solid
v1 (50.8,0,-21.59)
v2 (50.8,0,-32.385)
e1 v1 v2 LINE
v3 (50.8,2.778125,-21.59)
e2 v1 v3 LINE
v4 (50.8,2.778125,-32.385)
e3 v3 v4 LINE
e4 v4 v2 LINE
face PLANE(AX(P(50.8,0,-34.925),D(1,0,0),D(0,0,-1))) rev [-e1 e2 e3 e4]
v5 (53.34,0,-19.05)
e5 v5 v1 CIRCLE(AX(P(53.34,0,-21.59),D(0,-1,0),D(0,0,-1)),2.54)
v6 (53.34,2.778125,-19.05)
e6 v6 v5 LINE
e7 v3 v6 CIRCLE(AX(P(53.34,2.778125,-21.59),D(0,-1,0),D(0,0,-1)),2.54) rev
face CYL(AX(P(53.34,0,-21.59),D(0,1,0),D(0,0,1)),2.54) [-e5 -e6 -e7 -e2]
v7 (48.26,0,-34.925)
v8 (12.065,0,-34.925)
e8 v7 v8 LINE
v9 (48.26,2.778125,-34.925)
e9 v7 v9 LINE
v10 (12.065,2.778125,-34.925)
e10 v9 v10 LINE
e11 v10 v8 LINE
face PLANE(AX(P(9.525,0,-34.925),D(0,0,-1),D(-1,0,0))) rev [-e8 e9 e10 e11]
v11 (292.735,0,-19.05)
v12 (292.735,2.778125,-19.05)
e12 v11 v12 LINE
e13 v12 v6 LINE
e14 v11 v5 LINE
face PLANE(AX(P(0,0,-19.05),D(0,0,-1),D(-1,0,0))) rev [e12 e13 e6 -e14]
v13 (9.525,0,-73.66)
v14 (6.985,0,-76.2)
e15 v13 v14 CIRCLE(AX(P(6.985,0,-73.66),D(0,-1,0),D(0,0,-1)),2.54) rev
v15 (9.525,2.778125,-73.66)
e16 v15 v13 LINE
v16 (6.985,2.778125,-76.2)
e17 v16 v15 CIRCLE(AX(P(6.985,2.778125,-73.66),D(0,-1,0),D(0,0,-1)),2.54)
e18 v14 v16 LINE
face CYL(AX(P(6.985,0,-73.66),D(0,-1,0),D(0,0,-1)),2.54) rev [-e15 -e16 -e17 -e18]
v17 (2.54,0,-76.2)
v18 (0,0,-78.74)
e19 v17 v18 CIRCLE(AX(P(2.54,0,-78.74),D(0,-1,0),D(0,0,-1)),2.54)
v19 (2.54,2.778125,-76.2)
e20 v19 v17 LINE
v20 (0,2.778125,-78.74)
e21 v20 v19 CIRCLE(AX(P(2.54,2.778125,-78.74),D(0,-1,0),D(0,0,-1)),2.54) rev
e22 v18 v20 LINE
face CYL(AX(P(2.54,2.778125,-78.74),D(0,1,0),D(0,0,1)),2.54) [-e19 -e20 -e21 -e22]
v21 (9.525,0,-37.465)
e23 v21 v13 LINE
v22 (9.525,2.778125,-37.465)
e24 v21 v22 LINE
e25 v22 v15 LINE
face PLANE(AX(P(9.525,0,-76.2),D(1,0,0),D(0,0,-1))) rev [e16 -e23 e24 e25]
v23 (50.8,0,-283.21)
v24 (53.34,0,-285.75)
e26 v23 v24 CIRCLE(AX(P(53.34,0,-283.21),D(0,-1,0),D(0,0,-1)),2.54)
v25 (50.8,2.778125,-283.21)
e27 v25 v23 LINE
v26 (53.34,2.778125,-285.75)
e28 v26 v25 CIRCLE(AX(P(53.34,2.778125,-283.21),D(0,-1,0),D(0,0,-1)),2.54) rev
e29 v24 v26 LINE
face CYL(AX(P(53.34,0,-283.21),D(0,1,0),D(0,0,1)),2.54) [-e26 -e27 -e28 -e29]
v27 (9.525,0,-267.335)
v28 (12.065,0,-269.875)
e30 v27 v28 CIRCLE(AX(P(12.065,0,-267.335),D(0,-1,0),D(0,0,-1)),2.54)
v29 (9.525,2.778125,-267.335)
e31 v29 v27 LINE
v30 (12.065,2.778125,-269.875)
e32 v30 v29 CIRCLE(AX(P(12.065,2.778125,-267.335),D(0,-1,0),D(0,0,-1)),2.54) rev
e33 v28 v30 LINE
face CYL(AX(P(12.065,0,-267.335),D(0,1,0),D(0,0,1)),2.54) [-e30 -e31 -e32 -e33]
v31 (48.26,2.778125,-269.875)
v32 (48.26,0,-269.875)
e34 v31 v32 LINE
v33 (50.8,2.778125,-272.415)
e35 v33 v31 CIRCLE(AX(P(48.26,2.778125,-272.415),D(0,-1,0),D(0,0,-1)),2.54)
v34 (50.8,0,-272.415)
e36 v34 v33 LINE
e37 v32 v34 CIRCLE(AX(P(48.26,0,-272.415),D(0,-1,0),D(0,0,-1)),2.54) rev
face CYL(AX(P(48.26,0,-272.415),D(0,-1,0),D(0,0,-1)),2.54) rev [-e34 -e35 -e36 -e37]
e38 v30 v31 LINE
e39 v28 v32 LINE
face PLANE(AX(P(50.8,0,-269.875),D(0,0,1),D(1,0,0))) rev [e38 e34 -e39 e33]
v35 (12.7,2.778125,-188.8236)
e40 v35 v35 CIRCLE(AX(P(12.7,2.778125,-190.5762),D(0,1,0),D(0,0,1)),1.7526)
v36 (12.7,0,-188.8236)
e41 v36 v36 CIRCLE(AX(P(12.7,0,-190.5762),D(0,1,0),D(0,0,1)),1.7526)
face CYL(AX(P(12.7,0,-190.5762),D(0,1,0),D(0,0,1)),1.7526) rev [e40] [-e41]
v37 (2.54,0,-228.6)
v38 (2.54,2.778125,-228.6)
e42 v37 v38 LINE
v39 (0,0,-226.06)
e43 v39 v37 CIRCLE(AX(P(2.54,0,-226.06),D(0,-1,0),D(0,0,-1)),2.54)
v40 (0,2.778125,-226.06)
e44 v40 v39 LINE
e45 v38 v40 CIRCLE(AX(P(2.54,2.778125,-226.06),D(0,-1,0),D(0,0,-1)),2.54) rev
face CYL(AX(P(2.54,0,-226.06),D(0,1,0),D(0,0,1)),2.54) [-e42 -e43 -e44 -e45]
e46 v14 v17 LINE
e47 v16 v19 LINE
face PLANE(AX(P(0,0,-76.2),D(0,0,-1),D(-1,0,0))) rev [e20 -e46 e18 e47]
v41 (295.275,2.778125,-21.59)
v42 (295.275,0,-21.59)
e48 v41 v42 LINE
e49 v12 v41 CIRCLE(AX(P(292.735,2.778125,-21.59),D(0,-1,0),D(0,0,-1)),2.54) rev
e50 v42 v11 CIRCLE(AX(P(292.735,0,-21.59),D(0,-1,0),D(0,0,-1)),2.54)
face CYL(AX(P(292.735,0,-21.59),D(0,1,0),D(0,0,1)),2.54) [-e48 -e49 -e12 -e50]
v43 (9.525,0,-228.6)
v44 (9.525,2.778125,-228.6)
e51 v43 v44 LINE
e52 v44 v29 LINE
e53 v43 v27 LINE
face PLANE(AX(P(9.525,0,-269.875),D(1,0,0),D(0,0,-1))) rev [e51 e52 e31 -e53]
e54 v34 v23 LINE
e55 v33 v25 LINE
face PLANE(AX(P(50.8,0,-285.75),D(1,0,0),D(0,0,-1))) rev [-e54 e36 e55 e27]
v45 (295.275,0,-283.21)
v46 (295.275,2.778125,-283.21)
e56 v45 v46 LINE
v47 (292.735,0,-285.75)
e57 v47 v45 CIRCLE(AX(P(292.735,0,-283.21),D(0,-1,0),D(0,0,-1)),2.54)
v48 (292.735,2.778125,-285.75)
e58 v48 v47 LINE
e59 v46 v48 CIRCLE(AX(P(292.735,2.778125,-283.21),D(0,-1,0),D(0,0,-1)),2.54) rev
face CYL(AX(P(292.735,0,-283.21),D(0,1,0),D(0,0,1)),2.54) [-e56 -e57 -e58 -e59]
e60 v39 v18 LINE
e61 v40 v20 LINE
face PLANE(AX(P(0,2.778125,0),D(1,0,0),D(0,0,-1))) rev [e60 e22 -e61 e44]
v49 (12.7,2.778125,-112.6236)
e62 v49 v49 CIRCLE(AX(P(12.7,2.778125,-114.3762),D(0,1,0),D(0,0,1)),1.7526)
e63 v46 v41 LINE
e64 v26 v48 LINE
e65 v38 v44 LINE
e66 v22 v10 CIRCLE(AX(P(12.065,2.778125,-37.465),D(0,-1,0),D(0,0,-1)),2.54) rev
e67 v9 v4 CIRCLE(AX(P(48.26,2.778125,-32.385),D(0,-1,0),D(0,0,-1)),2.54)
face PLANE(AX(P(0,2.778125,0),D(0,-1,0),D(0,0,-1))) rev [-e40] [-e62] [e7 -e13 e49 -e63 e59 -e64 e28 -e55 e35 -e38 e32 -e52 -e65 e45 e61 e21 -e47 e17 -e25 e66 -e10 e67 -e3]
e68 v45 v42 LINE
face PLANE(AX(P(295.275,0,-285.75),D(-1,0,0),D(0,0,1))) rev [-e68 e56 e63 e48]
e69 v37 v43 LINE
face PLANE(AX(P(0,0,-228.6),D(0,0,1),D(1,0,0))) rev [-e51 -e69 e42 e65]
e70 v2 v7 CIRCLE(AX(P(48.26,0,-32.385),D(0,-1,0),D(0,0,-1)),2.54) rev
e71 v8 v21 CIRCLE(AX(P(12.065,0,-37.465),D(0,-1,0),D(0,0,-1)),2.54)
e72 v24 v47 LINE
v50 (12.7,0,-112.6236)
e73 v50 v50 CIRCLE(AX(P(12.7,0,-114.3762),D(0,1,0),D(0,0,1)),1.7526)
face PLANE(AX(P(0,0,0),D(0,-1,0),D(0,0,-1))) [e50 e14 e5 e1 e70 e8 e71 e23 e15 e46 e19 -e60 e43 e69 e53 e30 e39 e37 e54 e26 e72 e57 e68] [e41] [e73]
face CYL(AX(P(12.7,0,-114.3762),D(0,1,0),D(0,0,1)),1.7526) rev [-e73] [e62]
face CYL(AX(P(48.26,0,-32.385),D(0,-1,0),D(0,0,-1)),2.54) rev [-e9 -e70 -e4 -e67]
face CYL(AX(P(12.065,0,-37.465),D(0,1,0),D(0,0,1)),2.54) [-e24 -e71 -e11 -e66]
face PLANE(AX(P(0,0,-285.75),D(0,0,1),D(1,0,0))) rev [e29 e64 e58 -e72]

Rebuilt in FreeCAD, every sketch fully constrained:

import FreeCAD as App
import Part
import Sketcher
Q = App.Units.Quantity


def edges_at(feature, points):
    """Names of the edges that pass closest to the given points."""
    edges = feature.Shape.Edges
    near = lambda p: min(range(len(edges)), key=lambda i: edges[i].distToShape(Part.Vertex(*p))[0])
    return sorted({f"Edge{near(p) + 1}" for p in points})

doc = App.newDocument("Part")
params = doc.addObject("Spreadsheet::Sheet", "Params")
for row, (alias, value) in enumerate([
    ("sketch1_width", "12 in"),
    ("pad1_length", "0.109375 in"),
    ("sketch2_width", "12 in"),
    ("sketch2_height", "0.75 in"),
    ("sketch3_width", "2 in"),
    ("sketch3_height", "2.25 in"),
    ("sketch3_width2", "0.375 in"),
    ("sketch4_diameter", "0.138 in"),
    ("sketch5_height", "10.5 in"),
    ("sketch5_width", "0.375 in"),
    ("fillet_radius", "0.1 in"),
], start=1):
    params.set(f"A{row}", alias)
    params.set(f"B{row}", "=" + value)
    params.setAlias(f"B{row}", alias)

body = doc.addObject("PartDesign::Body", "Body")

sketch1 = doc.addObject("Sketcher::SketchObject", "Sketch")
body.addObject(sketch1)
sketch1.AttachmentSupport = (doc.XZ_Plane, [""])
sketch1.MapMode = "FlatFace"
sketch1.addGeometry(Part.LineSegment(App.Vector(0, -305, 0), App.Vector(0, 0, 0)), False)
sketch1.addGeometry(Part.LineSegment(App.Vector(0, 0, 0), App.Vector(305, 0, 0)), False)
sketch1.addGeometry(Part.LineSegment(App.Vector(305, 0, 0), App.Vector(305, -305, 0)), False)
sketch1.addGeometry(Part.LineSegment(App.Vector(305, -305, 0), App.Vector(0, -305, 0)), False)
sketch1.addConstraint(Sketcher.Constraint("Coincident", 0, 2, 1, 1))
sketch1.addConstraint(Sketcher.Constraint("Coincident", 1, 2, 2, 1))
sketch1.addConstraint(Sketcher.Constraint("Coincident", 2, 2, 3, 1))
sketch1.addConstraint(Sketcher.Constraint("Coincident", 3, 2, 0, 1))
sketch1.addConstraint(Sketcher.Constraint("Vertical", 0))
sketch1.addConstraint(Sketcher.Constraint("Horizontal", 1))
sketch1.addConstraint(Sketcher.Constraint("Vertical", 2))
sketch1.addConstraint(Sketcher.Constraint("Horizontal", 3))
sketch1.addConstraint(Sketcher.Constraint("Coincident", 0, 2, -1, 1))
sketch1.addConstraint(Sketcher.Constraint("Equal", 3, 0))
sketch1.addConstraint(Sketcher.Constraint("DistanceX", 1, 1, 1, 2, Q("12 in")))
sketch1.setExpression("Constraints[10]", "Params.sketch1_width")
pad1 = doc.addObject("PartDesign::Pad", "Pad")
body.addObject(pad1)
pad1.Profile = sketch1
pad1.setExpression("Length", "Params.pad1_length")
pad1.Reversed = True

sketch2 = doc.addObject("Sketcher::SketchObject", "Sketch001")
body.addObject(sketch2)
sketch2.AttachmentSupport = (doc.XZ_Plane, [""])
sketch2.MapMode = "FlatFace"
sketch2.AttachmentOffset = App.Placement(App.Vector(0, 0, -0.109375 * 25.4), App.Rotation())
sketch2.addGeometry(Part.LineSegment(App.Vector(0, -19, 0), App.Vector(0, 0, 0)), False)
sketch2.addGeometry(Part.LineSegment(App.Vector(0, 0, 0), App.Vector(305, 0, 0)), False)
sketch2.addGeometry(Part.LineSegment(App.Vector(305, 0, 0), App.Vector(305, -19, 0)), False)
sketch2.addGeometry(Part.LineSegment(App.Vector(305, -19, 0), App.Vector(0, -19, 0)), False)
sketch2.addGeometry(Part.LineSegment(App.Vector(0, -305, 0), App.Vector(0, -286, 0)), False)
sketch2.addGeometry(Part.LineSegment(App.Vector(0, -286, 0), App.Vector(305, -286, 0)), False)
sketch2.addGeometry(Part.LineSegment(App.Vector(305, -286, 0), App.Vector(305, -305, 0)), False)
sketch2.addGeometry(Part.LineSegment(App.Vector(305, -305, 0), App.Vector(0, -305, 0)), False)
sketch2.addConstraint(Sketcher.Constraint("Coincident", 0, 2, 1, 1))
sketch2.addConstraint(Sketcher.Constraint("Coincident", 1, 2, 2, 1))
sketch2.addConstraint(Sketcher.Constraint("Coincident", 2, 2, 3, 1))
sketch2.addConstraint(Sketcher.Constraint("Coincident", 3, 2, 0, 1))
sketch2.addConstraint(Sketcher.Constraint("Coincident", 4, 2, 5, 1))
sketch2.addConstraint(Sketcher.Constraint("Coincident", 5, 2, 6, 1))
sketch2.addConstraint(Sketcher.Constraint("Coincident", 6, 2, 7, 1))
sketch2.addConstraint(Sketcher.Constraint("Coincident", 7, 2, 4, 1))
sketch2.addConstraint(Sketcher.Constraint("Vertical", 0))
sketch2.addConstraint(Sketcher.Constraint("Horizontal", 1))
sketch2.addConstraint(Sketcher.Constraint("Vertical", 2))
sketch2.addConstraint(Sketcher.Constraint("Horizontal", 3))
sketch2.addConstraint(Sketcher.Constraint("Vertical", 4))
sketch2.addConstraint(Sketcher.Constraint("Horizontal", 5))
sketch2.addConstraint(Sketcher.Constraint("Vertical", 6))
sketch2.addConstraint(Sketcher.Constraint("Horizontal", 7))
sketch2.addConstraint(Sketcher.Constraint("Coincident", 0, 2, -1, 1))
sketch2.addConstraint(Sketcher.Constraint("PointOnObject", 4, 2, -2))
sketch2.addConstraint(Sketcher.Constraint("Vertical", 2, 2, 5, 2))
sketch2.addConstraint(Sketcher.Constraint("Equal", 2, 4))
sketch2.addConstraint(Sketcher.Constraint("DistanceX", 1, 1, 1, 2, Q("12 in")))
sketch2.addConstraint(Sketcher.Constraint("DistanceY", 6, 2, -1, 1, Q("12 in")))
sketch2.addConstraint(Sketcher.Constraint("DistanceY", 0, 1, 0, 2, Q("0.75 in")))
sketch2.setExpression("Constraints[20]", "Params.sketch2_width")
sketch2.setExpression("Constraints[22]", "Params.sketch2_height")
pocket1 = doc.addObject("PartDesign::Pocket", "Pocket")
body.addObject(pocket1)
pocket1.Profile = sketch2
pocket1.Type = "ThroughAll"
pocket1.Reversed = True

sketch3 = doc.addObject("Sketcher::SketchObject", "Sketch002")
body.addObject(sketch3)
sketch3.AttachmentSupport = (doc.XZ_Plane, [""])
sketch3.MapMode = "FlatFace"
sketch3.AttachmentOffset = App.Placement(App.Vector(0, 0, -0.109375 * 25.4), App.Rotation())
sketch3.addGeometry(Part.LineSegment(App.Vector(51, -286, 0), App.Vector(0, -286, 0)), False)
sketch3.addGeometry(Part.LineSegment(App.Vector(0, -286, 0), App.Vector(0, -229, 0)), False)
sketch3.addGeometry(Part.LineSegment(App.Vector(0, -229, 0), App.Vector(10, -229, 0)), False)
sketch3.addGeometry(Part.LineSegment(App.Vector(10, -229, 0), App.Vector(10, -270, 0)), False)
sketch3.addGeometry(Part.LineSegment(App.Vector(10, -270, 0), App.Vector(51, -270, 0)), False)
sketch3.addGeometry(Part.LineSegment(App.Vector(51, -270, 0), App.Vector(51, -286, 0)), False)
sketch3.addGeometry(Part.LineSegment(App.Vector(0, -76, 0), App.Vector(0, -19, 0)), False)
sketch3.addGeometry(Part.LineSegment(App.Vector(0, -19, 0), App.Vector(51, -19, 0)), False)
sketch3.addGeometry(Part.LineSegment(App.Vector(51, -19, 0), App.Vector(51, -35, 0)), False)
sketch3.addGeometry(Part.LineSegment(App.Vector(51, -35, 0), App.Vector(10, -35, 0)), False)
sketch3.addGeometry(Part.LineSegment(App.Vector(10, -35, 0), App.Vector(10, -76, 0)), False)
sketch3.addGeometry(Part.LineSegment(App.Vector(10, -76, 0), App.Vector(0, -76, 0)), False)
sketch3.addConstraint(Sketcher.Constraint("Coincident", 0, 2, 1, 1))
sketch3.addConstraint(Sketcher.Constraint("Coincident", 1, 2, 2, 1))
sketch3.addConstraint(Sketcher.Constraint("Coincident", 2, 2, 3, 1))
sketch3.addConstraint(Sketcher.Constraint("Coincident", 3, 2, 4, 1))
sketch3.addConstraint(Sketcher.Constraint("Coincident", 4, 2, 5, 1))
sketch3.addConstraint(Sketcher.Constraint("Coincident", 5, 2, 0, 1))
sketch3.addConstraint(Sketcher.Constraint("Coincident", 6, 2, 7, 1))
sketch3.addConstraint(Sketcher.Constraint("Coincident", 7, 2, 8, 1))
sketch3.addConstraint(Sketcher.Constraint("Coincident", 8, 2, 9, 1))
sketch3.addConstraint(Sketcher.Constraint("Coincident", 9, 2, 10, 1))
sketch3.addConstraint(Sketcher.Constraint("Coincident", 10, 2, 11, 1))
sketch3.addConstraint(Sketcher.Constraint("Coincident", 11, 2, 6, 1))
sketch3.addConstraint(Sketcher.Constraint("Horizontal", 0))
sketch3.addConstraint(Sketcher.Constraint("Vertical", 1))
sketch3.addConstraint(Sketcher.Constraint("Horizontal", 2))
sketch3.addConstraint(Sketcher.Constraint("Vertical", 3))
sketch3.addConstraint(Sketcher.Constraint("Horizontal", 4))
sketch3.addConstraint(Sketcher.Constraint("Vertical", 5))
sketch3.addConstraint(Sketcher.Constraint("Vertical", 6))
sketch3.addConstraint(Sketcher.Constraint("Horizontal", 7))
sketch3.addConstraint(Sketcher.Constraint("Vertical", 8))
sketch3.addConstraint(Sketcher.Constraint("Horizontal", 9))
sketch3.addConstraint(Sketcher.Constraint("Vertical", 10))
sketch3.addConstraint(Sketcher.Constraint("Horizontal", 11))
sketch3.addConstraint(Sketcher.Constraint("PointOnObject", 0, 2, -2))
sketch3.addConstraint(Sketcher.Constraint("PointOnObject", 6, 2, -2))
sketch3.addConstraint(Sketcher.Constraint("Vertical", 5, 2, 7, 2))
sketch3.addConstraint(Sketcher.Constraint("Vertical", 3, 2, 9, 2))
sketch3.addConstraint(Sketcher.Constraint("Equal", 9, 3))
sketch3.addConstraint(Sketcher.Constraint("Equal", 1, 6))
sketch3.addConstraint(Sketcher.Constraint("Equal", 5, 8))
sketch3.addConstraint(Sketcher.Constraint("DistanceX", 0, 2, 0, 1, Q("2 in")))
sketch3.addConstraint(Sketcher.Constraint("DistanceY", 1, 2, -1, 1, Q("9 in")))
sketch3.addConstraint(Sketcher.Constraint("DistanceY", 10, 2, -1, 1, Q("3 in")))
sketch3.addConstraint(Sketcher.Constraint("DistanceY", 1, 1, 1, 2, Q("2.25 in")))
sketch3.addConstraint(Sketcher.Constraint("DistanceX", 2, 1, 2, 2, Q("0.375 in")))
sketch3.setExpression("Constraints[31]", "Params.sketch3_width")
sketch3.setExpression("Constraints[34]", "Params.sketch3_height")
sketch3.setExpression("Constraints[35]", "Params.sketch3_width2")
pocket2 = doc.addObject("PartDesign::Pocket", "Pocket001")
body.addObject(pocket2)
pocket2.Profile = sketch3
pocket2.Type = "ThroughAll"
pocket2.Reversed = True

sketch4 = doc.addObject("Sketcher::SketchObject", "Sketch003")
body.addObject(sketch4)
sketch4.AttachmentSupport = (doc.XZ_Plane, [""])
sketch4.MapMode = "FlatFace"
sketch4.AttachmentOffset = App.Placement(App.Vector(0, 0, -0.109375 * 25.4), App.Rotation())
sketch4.addGeometry(Part.Circle(App.Vector(12.7, -190.6, 0), App.Vector(0, 0, 1), 1.8), False)
sketch4.addGeometry(Part.Circle(App.Vector(12.7, -114.4, 0), App.Vector(0, 0, 1), 1.8), False)
sketch4.addConstraint(Sketcher.Constraint("Equal", 0, 1))
sketch4.addConstraint(Sketcher.Constraint("Vertical", 0, 3, 1, 3))
sketch4.addConstraint(Sketcher.Constraint("Diameter", 0, Q("0.138 in")))
sketch4.addConstraint(Sketcher.Constraint("DistanceY", 0, 3, 1, 3, Q("3 in")))
sketch4.addConstraint(Sketcher.Constraint("DistanceX", -1, 1, 0, 3, Q("0.5 in")))
sketch4.addConstraint(Sketcher.Constraint("DistanceY", 0, 3, -1, 1, Q("7.503 in")))
sketch4.setExpression("Constraints[2]", "Params.sketch4_diameter")
pocket3 = doc.addObject("PartDesign::Pocket", "Pocket002")
body.addObject(pocket3)
pocket3.Profile = sketch4
pocket3.Type = "ThroughAll"
pocket3.Reversed = True

sketch5 = doc.addObject("Sketcher::SketchObject", "Sketch004")
body.addObject(sketch5)
sketch5.AttachmentSupport = (doc.XZ_Plane, [""])
sketch5.MapMode = "FlatFace"
sketch5.AttachmentOffset = App.Placement(App.Vector(0, 0, -0.109375 * 25.4), App.Rotation())
sketch5.addGeometry(Part.LineSegment(App.Vector(295, -286, 0), App.Vector(295, -19, 0)), False)
sketch5.addGeometry(Part.LineSegment(App.Vector(295, -19, 0), App.Vector(305, -19, 0)), False)
sketch5.addGeometry(Part.LineSegment(App.Vector(305, -19, 0), App.Vector(305, -286, 0)), False)
sketch5.addGeometry(Part.LineSegment(App.Vector(305, -286, 0), App.Vector(295, -286, 0)), False)
sketch5.addConstraint(Sketcher.Constraint("Coincident", 0, 2, 1, 1))
sketch5.addConstraint(Sketcher.Constraint("Coincident", 1, 2, 2, 1))
sketch5.addConstraint(Sketcher.Constraint("Coincident", 2, 2, 3, 1))
sketch5.addConstraint(Sketcher.Constraint("Coincident", 3, 2, 0, 1))
sketch5.addConstraint(Sketcher.Constraint("Vertical", 0))
sketch5.addConstraint(Sketcher.Constraint("Horizontal", 1))
sketch5.addConstraint(Sketcher.Constraint("Vertical", 2))
sketch5.addConstraint(Sketcher.Constraint("Horizontal", 3))
sketch5.addConstraint(Sketcher.Constraint("DistanceY", 0, 1, 0, 2, Q("10.5 in")))
sketch5.addConstraint(Sketcher.Constraint("DistanceX", -1, 1, 1, 2, Q("12 in")))
sketch5.addConstraint(Sketcher.Constraint("DistanceX", 1, 1, 1, 2, Q("0.375 in")))
sketch5.addConstraint(Sketcher.Constraint("DistanceY", 0, 2, -1, 1, Q("0.75 in")))
sketch5.setExpression("Constraints[8]", "Params.sketch5_height")
sketch5.setExpression("Constraints[10]", "Params.sketch5_width")
pocket4 = doc.addObject("PartDesign::Pocket", "Pocket003")
body.addObject(pocket4)
pocket4.Profile = sketch5
pocket4.Type = "ThroughAll"
pocket4.Reversed = True
doc.recompute()

fillet = doc.addObject("PartDesign::Fillet", "Fillet")
body.addObject(fillet)
fillet.Base = (pocket4, edges_at(pocket4, [
    (295.275, 1.389, -19.05),
    (295.275, 1.389, -285.75),
    (50.8, 1.389, -285.75),
    (50.8, 1.389, -269.875),
    (9.525, 1.389, -269.875),
    (0, 1.389, -228.6),
    (50.8, 1.389, -19.05),
    (0, 1.389, -76.2),
    (9.525, 1.389, -76.2),
    (9.525, 1.389, -34.925),
    (50.8, 1.389, -34.925),
]))
fillet.setExpression("Radius", "Params.fillet_radius")

doc.recompute()
